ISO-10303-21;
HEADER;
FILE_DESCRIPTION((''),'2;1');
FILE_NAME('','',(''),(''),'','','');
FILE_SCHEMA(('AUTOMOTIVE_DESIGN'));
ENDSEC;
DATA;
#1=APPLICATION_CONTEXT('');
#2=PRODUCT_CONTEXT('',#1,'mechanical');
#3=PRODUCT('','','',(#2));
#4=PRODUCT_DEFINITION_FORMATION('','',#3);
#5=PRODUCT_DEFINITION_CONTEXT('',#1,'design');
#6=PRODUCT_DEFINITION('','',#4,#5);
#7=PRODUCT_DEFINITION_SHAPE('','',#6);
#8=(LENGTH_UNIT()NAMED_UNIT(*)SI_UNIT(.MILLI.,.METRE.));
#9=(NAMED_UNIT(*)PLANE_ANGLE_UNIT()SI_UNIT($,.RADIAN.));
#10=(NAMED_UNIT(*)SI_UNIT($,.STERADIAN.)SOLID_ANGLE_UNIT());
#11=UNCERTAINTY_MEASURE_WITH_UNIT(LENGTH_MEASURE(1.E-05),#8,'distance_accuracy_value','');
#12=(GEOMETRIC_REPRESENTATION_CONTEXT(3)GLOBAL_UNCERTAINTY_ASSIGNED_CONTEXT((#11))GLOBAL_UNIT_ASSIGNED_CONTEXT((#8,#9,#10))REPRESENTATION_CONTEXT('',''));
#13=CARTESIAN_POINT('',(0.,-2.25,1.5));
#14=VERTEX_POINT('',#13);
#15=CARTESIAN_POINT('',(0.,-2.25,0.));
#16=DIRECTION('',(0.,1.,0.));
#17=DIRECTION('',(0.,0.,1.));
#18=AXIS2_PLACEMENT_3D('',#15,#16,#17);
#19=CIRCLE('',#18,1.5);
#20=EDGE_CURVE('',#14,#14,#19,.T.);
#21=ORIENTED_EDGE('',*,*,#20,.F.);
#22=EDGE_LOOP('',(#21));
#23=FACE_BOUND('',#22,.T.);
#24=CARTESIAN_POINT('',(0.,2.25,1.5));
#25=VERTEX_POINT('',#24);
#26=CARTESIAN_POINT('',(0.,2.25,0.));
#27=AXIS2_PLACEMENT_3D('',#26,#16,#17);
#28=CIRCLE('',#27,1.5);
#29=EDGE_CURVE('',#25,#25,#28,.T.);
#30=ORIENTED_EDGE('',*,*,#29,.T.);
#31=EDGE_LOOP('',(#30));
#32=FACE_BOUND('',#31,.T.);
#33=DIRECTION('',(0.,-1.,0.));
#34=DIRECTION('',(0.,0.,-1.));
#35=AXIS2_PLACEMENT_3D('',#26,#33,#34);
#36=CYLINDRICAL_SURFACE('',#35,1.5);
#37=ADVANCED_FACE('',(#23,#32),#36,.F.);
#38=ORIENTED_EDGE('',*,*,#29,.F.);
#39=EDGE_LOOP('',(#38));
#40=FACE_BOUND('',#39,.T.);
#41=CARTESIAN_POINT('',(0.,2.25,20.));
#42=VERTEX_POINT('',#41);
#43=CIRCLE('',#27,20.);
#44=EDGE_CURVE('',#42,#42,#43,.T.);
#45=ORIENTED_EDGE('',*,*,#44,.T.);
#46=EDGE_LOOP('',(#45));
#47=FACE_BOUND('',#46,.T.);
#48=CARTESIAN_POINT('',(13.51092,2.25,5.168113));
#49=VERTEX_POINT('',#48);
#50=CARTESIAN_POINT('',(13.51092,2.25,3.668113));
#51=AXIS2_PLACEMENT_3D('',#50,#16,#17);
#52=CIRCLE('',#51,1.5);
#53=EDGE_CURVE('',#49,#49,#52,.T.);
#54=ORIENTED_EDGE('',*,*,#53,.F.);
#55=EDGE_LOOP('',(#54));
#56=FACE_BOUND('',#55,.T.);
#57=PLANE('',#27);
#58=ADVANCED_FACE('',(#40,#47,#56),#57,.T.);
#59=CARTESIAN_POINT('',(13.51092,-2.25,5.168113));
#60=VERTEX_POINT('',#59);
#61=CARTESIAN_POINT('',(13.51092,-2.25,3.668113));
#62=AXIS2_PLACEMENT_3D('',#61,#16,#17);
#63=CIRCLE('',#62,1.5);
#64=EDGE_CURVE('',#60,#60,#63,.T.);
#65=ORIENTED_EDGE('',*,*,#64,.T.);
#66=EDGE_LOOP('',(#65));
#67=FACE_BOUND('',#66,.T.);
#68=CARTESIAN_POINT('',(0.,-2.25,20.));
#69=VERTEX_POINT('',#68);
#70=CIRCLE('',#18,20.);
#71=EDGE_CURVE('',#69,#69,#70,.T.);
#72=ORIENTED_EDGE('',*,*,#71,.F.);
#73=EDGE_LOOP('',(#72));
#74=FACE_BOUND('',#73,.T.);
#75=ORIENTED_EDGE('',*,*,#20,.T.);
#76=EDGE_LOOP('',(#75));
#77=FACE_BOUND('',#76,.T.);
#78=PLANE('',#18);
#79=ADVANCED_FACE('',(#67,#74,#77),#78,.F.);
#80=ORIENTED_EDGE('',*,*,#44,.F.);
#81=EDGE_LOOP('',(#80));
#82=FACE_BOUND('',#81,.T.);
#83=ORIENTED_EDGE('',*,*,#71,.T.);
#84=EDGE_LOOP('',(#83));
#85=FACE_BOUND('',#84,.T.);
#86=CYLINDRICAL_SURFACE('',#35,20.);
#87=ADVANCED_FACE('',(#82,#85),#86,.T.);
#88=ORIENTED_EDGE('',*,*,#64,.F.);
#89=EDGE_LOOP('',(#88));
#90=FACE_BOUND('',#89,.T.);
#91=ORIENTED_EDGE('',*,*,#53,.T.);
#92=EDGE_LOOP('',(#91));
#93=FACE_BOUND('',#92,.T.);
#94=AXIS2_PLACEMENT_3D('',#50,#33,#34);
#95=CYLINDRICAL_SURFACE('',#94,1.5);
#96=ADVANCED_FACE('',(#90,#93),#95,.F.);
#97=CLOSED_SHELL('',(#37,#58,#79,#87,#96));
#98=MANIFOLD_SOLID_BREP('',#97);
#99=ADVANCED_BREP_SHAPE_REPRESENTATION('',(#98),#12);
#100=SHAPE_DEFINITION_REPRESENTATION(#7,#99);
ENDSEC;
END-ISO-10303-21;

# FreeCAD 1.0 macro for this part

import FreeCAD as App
import Part
import Sketcher

V = App.Vector

doc = App.newDocument("Part")
params = doc.addObject("Spreadsheet::Sheet", "Params")
for row, (alias, value) in enumerate([
    ("sketch1_diameter", "40 mm"),
    ("sketch1_diameter2", "3 mm"),
    ("pad1_length", "4.5 mm"),
], start=1):
    params.set(f"A{row}", alias)
    params.set(f"B{row}", "=" + value)
    params.setAlias(f"B{row}", alias)

body = doc.addObject("PartDesign::Body", "Body")

# Sketch on XZ plane
sketch1 = body.newObject("Sketcher::SketchObject", "Sketch")
sketch1.AttachmentSupport = (doc.getObject("XZ_Plane"), [""])
sketch1.MapMode = "FlatFace"
sketch1.addGeometry(Part.Circle(V(0, 0, 0), V(0, 0, 1), 20), False)
sketch1.addGeometry(Part.Circle(V(0, 0, 0), V(0, 0, 1), 1.5), False)
sketch1.addGeometry(Part.Circle(V(13.5, 3.7, 0), V(0, 0, 1), 1.5), False)
sketch1.addConstraint(Sketcher.Constraint("Coincident", 0, 3, -1, 1))
sketch1.addConstraint(Sketcher.Constraint("Coincident", 1, 3, -1, 1))
sketch1.addConstraint(Sketcher.Constraint("Equal", 1, 2))
sketch1.addConstraint(Sketcher.Constraint("Diameter", 0, 40.0))
sketch1.addConstraint(Sketcher.Constraint("Diameter", 1, 3.0))
sketch1.addConstraint(Sketcher.Constraint("DistanceX", -1, 1, 2, 3, 13.51092))
sketch1.addConstraint(Sketcher.Constraint("DistanceY", -1, 1, 2, 3, 3.668113))
sketch1.setExpression("Constraints[3]", "Params.sketch1_diameter")
sketch1.setExpression("Constraints[4]", "Params.sketch1_diameter2")
pad1 = body.newObject("PartDesign::Pad", "Pad")
pad1.Profile = sketch1
pad1.setExpression("Length", "Params.pad1_length")
pad1.Midplane = True

doc.recompute()
